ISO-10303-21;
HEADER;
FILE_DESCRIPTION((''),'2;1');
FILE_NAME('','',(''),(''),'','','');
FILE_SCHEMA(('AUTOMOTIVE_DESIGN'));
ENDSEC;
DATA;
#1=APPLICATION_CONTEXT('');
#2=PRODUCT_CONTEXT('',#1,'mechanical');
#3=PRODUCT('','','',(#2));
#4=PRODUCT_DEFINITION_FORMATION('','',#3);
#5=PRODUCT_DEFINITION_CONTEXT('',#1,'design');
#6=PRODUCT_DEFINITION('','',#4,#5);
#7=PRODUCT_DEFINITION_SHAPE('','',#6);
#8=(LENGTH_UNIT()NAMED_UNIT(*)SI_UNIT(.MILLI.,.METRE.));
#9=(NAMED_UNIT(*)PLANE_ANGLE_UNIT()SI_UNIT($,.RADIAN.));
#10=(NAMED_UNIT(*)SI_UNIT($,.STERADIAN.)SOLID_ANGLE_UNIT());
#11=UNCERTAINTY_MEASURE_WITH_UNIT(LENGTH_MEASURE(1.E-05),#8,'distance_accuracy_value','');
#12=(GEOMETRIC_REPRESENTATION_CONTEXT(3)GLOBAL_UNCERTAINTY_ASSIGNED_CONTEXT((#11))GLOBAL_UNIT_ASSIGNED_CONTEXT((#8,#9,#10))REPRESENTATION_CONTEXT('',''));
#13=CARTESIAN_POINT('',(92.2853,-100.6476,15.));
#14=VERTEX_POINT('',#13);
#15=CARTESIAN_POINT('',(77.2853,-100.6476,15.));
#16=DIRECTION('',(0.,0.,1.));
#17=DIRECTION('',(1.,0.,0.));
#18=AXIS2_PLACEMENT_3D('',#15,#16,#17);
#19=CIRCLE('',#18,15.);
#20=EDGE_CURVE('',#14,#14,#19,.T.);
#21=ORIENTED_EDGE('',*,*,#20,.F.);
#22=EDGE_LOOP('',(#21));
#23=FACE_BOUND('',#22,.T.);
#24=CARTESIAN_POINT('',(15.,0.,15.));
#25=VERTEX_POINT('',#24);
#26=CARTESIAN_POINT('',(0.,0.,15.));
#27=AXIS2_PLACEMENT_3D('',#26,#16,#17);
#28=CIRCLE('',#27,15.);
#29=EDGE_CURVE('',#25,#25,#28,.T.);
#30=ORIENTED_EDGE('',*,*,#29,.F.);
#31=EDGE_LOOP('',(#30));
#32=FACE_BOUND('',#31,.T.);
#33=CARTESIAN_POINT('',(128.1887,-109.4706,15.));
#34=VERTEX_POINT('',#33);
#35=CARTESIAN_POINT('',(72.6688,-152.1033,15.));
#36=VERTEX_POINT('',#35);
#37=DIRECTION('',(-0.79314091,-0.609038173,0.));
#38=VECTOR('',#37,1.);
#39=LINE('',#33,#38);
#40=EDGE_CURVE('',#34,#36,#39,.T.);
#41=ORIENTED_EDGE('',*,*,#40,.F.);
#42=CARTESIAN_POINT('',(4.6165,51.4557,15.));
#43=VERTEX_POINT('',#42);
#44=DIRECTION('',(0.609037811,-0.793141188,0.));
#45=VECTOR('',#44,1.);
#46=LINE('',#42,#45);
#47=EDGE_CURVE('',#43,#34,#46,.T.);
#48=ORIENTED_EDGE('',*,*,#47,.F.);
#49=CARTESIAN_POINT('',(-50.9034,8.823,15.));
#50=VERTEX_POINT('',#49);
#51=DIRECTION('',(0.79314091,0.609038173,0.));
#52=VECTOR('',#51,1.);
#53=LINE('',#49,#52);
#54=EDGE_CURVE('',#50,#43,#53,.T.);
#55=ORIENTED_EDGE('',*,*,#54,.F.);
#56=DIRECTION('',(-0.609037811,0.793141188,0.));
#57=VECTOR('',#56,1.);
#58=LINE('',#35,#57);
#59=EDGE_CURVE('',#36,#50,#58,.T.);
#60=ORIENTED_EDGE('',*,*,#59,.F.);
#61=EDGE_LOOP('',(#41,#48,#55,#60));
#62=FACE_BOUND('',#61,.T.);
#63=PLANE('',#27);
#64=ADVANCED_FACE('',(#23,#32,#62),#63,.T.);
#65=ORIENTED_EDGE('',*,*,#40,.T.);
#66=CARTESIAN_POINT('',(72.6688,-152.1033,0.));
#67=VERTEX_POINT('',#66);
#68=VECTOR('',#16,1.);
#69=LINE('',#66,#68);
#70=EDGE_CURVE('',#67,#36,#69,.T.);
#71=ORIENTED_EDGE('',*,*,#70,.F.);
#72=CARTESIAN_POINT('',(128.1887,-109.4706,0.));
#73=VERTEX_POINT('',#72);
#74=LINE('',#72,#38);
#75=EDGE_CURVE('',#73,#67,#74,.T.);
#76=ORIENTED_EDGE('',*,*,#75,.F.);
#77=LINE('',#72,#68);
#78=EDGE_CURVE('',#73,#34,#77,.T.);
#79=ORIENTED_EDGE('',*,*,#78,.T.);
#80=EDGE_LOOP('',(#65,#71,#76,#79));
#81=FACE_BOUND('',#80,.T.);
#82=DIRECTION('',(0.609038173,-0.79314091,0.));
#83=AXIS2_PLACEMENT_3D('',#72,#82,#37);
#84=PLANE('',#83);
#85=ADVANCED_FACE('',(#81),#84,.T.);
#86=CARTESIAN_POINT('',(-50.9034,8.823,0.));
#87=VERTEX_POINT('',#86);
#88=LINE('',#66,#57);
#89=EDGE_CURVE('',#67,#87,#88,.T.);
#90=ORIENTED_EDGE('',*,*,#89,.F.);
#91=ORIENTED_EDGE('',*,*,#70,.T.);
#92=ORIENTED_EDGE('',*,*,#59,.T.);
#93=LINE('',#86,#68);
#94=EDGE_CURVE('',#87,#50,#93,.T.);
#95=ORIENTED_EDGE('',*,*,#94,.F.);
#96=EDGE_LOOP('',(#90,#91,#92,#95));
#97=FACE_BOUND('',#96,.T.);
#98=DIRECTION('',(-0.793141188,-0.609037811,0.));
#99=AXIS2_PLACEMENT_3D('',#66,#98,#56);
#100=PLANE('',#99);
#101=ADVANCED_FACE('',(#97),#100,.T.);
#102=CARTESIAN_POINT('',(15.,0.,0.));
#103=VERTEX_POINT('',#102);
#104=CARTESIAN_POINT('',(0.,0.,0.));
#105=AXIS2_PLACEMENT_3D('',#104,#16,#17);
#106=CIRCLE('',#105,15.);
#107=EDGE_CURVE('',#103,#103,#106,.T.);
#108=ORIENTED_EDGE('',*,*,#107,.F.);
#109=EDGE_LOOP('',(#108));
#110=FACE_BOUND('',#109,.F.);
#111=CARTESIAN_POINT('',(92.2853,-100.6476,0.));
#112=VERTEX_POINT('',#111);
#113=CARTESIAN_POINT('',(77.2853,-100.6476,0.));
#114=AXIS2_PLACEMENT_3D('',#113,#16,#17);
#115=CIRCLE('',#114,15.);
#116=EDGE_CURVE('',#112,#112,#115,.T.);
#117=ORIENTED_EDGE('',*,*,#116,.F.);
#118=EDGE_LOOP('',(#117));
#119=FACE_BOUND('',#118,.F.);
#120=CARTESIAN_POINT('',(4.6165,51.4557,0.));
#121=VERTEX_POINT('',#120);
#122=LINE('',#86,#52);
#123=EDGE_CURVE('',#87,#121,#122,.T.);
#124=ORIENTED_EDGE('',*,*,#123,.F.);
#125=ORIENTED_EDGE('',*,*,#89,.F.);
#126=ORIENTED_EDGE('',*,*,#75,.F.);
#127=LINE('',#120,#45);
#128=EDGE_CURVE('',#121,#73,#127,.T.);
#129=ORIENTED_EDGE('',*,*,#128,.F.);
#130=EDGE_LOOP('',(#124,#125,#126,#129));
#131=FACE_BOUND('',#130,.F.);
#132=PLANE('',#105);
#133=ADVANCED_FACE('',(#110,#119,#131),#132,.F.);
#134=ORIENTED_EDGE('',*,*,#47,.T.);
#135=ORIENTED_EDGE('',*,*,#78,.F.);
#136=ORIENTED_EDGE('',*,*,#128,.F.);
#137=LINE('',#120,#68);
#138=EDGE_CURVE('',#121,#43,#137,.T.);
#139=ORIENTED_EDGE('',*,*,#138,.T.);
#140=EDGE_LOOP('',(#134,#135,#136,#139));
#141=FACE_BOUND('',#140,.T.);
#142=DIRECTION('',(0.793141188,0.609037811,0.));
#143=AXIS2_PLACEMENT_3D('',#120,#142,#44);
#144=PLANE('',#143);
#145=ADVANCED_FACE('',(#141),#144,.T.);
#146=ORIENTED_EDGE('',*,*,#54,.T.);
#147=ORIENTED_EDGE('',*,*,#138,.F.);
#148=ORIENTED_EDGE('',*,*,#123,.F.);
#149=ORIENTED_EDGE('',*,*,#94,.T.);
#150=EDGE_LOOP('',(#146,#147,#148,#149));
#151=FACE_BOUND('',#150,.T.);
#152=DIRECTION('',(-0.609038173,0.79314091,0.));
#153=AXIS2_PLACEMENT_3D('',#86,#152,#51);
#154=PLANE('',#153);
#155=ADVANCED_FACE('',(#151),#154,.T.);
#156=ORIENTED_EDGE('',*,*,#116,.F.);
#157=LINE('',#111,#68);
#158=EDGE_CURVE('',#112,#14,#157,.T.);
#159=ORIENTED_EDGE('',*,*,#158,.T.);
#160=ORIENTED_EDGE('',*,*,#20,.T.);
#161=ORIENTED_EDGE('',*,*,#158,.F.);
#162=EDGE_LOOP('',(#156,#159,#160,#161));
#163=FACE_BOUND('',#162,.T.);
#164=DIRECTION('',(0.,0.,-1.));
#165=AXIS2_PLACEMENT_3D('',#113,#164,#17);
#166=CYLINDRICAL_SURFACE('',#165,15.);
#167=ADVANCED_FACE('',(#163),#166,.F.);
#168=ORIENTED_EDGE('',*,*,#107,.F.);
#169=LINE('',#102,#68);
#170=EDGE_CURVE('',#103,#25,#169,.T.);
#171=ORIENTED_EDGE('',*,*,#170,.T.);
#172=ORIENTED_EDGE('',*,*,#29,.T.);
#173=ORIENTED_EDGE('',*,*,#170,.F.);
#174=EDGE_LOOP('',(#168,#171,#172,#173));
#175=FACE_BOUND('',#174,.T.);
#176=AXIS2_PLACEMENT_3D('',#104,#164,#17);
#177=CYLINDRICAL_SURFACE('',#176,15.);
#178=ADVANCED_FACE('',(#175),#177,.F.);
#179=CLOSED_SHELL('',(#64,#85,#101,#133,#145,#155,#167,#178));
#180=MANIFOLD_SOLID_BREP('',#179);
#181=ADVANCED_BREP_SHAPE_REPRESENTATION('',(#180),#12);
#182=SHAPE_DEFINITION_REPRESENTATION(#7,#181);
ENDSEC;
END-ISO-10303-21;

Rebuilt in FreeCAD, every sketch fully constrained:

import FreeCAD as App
import Part
import Sketcher
Q = App.Units.Quantity

doc = App.newDocument("Part")
body = doc.addObject("PartDesign::Body", "Body")

# Sketch on XY plane
sketch1 = doc.addObject("Sketcher::SketchObject", "Sketch")
body.addObject(sketch1)
sketch1.AttachmentSupport = (doc.XY_Plane, [""])
sketch1.MapMode = "FlatFace"
sketch1.addGeometry([
    Part.LineSegment(App.Vector(5, 51, 0), App.Vector(-51, 9, 0)),  # 0
    Part.LineSegment(App.Vector(-51, 9, 0), App.Vector(73, -152, 0)),  # 1
    Part.LineSegment(App.Vector(73, -152, 0), App.Vector(128, -109, 0)),  # 2
    Part.LineSegment(App.Vector(128, -109, 0), App.Vector(5, 51, 0)),  # 3
    Part.Circle(App.Vector(77, -101, 0), App.Vector(0, 0, 1), 15),  # 4
    Part.Circle(App.Vector(0, 0, 0), App.Vector(0, 0, 1), 15),  # 5
], False)
sketch1.addConstraint([
    Sketcher.Constraint("Coincident", 0, 2, 1, 1),
    Sketcher.Constraint("Coincident", 1, 2, 2, 1),
    Sketcher.Constraint("Coincident", 2, 2, 3, 1),
    Sketcher.Constraint("Coincident", 3, 2, 0, 1),
    Sketcher.Constraint("Coincident", 5, 3, -1, 1),
    Sketcher.Constraint("Equal", 4, 5),
    Sketcher.Constraint("Perpendicular", 0, 1),
    Sketcher.Constraint("Perpendicular", 1, 2),
    Sketcher.Constraint("Perpendicular", 2, 3),
    Sketcher.Constraint("Diameter", 4, Q("30 mm")),
    Sketcher.Constraint("Distance", 0, Q("70 mm")),
    Sketcher.Constraint("Angle", 0, Q("-142.48 deg")),
    Sketcher.Constraint("DistanceY", -1, 1, 0, 2, Q("8.823 mm")),
    Sketcher.Constraint("DistanceY", 2, 2, 4, 3, Q("8.823 mm")),
    Sketcher.Constraint("DistanceX", 0, 2, 2, 2, Q("179.092 mm")),
    Sketcher.Constraint("DistanceX", -1, 1, 4, 3, Q("77.2853 mm")),
    Sketcher.Constraint("DistanceX", 0, 2, -1, 1, Q("50.9034 mm")),
])
pad1 = doc.addObject("PartDesign::Pad", "Pad")
body.addObject(pad1)
pad1.Profile = sketch1
pad1.Length = 15

doc.recompute()
